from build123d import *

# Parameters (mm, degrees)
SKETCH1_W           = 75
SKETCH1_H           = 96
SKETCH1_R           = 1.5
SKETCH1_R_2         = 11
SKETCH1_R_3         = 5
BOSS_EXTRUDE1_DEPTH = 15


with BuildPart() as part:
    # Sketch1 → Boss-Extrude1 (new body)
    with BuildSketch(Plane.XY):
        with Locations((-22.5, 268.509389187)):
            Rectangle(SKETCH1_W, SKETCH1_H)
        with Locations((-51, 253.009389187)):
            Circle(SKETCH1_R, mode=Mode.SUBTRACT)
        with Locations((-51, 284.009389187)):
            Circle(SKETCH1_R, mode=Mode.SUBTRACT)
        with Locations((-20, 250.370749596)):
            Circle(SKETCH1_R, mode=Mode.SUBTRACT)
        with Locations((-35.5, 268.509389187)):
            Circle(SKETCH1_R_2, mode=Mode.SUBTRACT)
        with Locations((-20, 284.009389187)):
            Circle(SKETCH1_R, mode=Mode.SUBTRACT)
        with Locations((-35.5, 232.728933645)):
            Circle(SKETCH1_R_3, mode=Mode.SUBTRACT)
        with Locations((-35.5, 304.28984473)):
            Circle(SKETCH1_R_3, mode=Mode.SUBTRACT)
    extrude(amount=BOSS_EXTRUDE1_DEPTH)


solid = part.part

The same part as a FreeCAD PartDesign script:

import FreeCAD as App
import Part
import Sketcher
from FreeCAD import Vector
Q = App.Units.Quantity


def add_polygon(sketch, points):
    """Adds a closed chain of lines whose ends are joined by coincident constraints."""
    first, n = sketch.GeometryCount, len(points)
    for a, b in zip(points, points[1:] + points[:1]):
        sketch.addGeometry(Part.LineSegment(App.Vector(*a, 0), App.Vector(*b, 0)), False)
    for i in range(n):
        sketch.addConstraint(Sketcher.Constraint("Coincident", first + i, 2, first + (i + 1) % n, 1))

doc = App.newDocument("Part")
body = doc.addObject("PartDesign::Body", "Body")

sketch1 = body.newObject("Sketcher::SketchObject", "Sketch")
sketch1.AttachmentSupport = (doc.getObject("XY_Plane"), [""])
sketch1.MapMode = "FlatFace"
add_polygon(sketch1, [(-60, 316.5), (-60, 220.5), (15, 220.5), (15, 316.5)])
sketch1.addGeometry(Part.Circle(Vector(-51, 253, 0), Vector(0, 0, 1), 1.5), False)
sketch1.addGeometry(Part.Circle(Vector(-35.5, 232.7, 0), Vector(0, 0, 1), 5), False)
sketch1.addGeometry(Part.Circle(Vector(-35.5, 268.5, 0), Vector(0, 0, 1), 11), False)
sketch1.addGeometry(Part.Circle(Vector(-20, 250.4, 0), Vector(0, 0, 1), 1.5), False)
sketch1.addGeometry(Part.Circle(Vector(-51, 284, 0), Vector(0, 0, 1), 1.5), False)
sketch1.addGeometry(Part.Circle(Vector(-20, 284, 0), Vector(0, 0, 1), 1.5), False)
sketch1.addGeometry(Part.Circle(Vector(-35.5, 304.3, 0), Vector(0, 0, 1), 5), False)
sketch1.addConstraint(Sketcher.Constraint("Vertical", 0))
sketch1.addConstraint(Sketcher.Constraint("Horizontal", 1))
sketch1.addConstraint(Sketcher.Constraint("Vertical", 2))
sketch1.addConstraint(Sketcher.Constraint("Horizontal", 3))
sketch1.addConstraint(Sketcher.Constraint("Equal", 4, 7))
sketch1.addConstraint(Sketcher.Constraint("Equal", 7, 8))
sketch1.addConstraint(Sketcher.Constraint("Equal", 8, 9))
sketch1.addConstraint(Sketcher.Constraint("Equal", 5, 10))
sketch1.addConstraint(Sketcher.Constraint("Horizontal", 8, 3, 9, 3))
sketch1.addConstraint(Sketcher.Constraint("Vertical", 5, 3, 6, 3))
sketch1.addConstraint(Sketcher.Constraint("Vertical", 4, 3, 8, 3))
sketch1.addConstraint(Sketcher.Constraint("Vertical", 7, 3, 9, 3))
sketch1.addConstraint(Sketcher.Constraint("Vertical", 6, 3, 10, 3))
sketch1.addConstraint(Sketcher.Constraint("Diameter", 4, Q("3 mm")))
sketch1.addConstraint(Sketcher.Constraint("Diameter", 5, Q("10 mm")))
sketch1.addConstraint(Sketcher.Constraint("Diameter", 6, Q("22 mm")))
sketch1.addConstraint(Sketcher.Constraint("DistanceX", 1, 1, 1, 2, Q("75 mm")))
sketch1.addConstraint(Sketcher.Constraint("DistanceY", 0, 2, 0, 1, Q("96 mm")))
sketch1.addConstraint(Sketcher.Constraint("DistanceX", 4, 3, -1, 1, Q("51 mm")))
sketch1.addConstraint(Sketcher.Constraint("DistanceX", 7, 3, -1, 1, Q("20 mm")))
sketch1.addConstraint(Sketcher.Constraint("DistanceX", 0, 2, -1, 1, Q("60 mm")))
sketch1.addConstraint(Sketcher.Constraint("DistanceY", 4, 3, 8, 3, Q("31 mm")))
sketch1.addConstraint(Sketcher.Constraint("DistanceY", 0, 2, 6, 3, Q("48 mm")))
sketch1.addConstraint(Sketcher.Constraint("DistanceX", 5, 3, -1, 1, Q("35.5 mm")))
sketch1.addConstraint(Sketcher.Constraint("DistanceY", 4, 3, 6, 3, Q("15.5 mm")))
sketch1.addConstraint(Sketcher.Constraint("DistanceY", -1, 1, 4, 3, Q("253.009389 mm")))
sketch1.addConstraint(Sketcher.Constraint("DistanceY", -1, 1, 7, 3, Q("250.37075 mm")))
sketch1.addConstraint(Sketcher.Constraint("DistanceY", -1, 1, 5, 3, Q("232.728934 mm")))
sketch1.addConstraint(Sketcher.Constraint("DistanceY", -1, 1, 10, 3, Q("304.289845 mm")))
pad1 = body.newObject("PartDesign::Pad", "Pad")
pad1.Profile = sketch1
pad1.Length = 15

doc.recompute()
